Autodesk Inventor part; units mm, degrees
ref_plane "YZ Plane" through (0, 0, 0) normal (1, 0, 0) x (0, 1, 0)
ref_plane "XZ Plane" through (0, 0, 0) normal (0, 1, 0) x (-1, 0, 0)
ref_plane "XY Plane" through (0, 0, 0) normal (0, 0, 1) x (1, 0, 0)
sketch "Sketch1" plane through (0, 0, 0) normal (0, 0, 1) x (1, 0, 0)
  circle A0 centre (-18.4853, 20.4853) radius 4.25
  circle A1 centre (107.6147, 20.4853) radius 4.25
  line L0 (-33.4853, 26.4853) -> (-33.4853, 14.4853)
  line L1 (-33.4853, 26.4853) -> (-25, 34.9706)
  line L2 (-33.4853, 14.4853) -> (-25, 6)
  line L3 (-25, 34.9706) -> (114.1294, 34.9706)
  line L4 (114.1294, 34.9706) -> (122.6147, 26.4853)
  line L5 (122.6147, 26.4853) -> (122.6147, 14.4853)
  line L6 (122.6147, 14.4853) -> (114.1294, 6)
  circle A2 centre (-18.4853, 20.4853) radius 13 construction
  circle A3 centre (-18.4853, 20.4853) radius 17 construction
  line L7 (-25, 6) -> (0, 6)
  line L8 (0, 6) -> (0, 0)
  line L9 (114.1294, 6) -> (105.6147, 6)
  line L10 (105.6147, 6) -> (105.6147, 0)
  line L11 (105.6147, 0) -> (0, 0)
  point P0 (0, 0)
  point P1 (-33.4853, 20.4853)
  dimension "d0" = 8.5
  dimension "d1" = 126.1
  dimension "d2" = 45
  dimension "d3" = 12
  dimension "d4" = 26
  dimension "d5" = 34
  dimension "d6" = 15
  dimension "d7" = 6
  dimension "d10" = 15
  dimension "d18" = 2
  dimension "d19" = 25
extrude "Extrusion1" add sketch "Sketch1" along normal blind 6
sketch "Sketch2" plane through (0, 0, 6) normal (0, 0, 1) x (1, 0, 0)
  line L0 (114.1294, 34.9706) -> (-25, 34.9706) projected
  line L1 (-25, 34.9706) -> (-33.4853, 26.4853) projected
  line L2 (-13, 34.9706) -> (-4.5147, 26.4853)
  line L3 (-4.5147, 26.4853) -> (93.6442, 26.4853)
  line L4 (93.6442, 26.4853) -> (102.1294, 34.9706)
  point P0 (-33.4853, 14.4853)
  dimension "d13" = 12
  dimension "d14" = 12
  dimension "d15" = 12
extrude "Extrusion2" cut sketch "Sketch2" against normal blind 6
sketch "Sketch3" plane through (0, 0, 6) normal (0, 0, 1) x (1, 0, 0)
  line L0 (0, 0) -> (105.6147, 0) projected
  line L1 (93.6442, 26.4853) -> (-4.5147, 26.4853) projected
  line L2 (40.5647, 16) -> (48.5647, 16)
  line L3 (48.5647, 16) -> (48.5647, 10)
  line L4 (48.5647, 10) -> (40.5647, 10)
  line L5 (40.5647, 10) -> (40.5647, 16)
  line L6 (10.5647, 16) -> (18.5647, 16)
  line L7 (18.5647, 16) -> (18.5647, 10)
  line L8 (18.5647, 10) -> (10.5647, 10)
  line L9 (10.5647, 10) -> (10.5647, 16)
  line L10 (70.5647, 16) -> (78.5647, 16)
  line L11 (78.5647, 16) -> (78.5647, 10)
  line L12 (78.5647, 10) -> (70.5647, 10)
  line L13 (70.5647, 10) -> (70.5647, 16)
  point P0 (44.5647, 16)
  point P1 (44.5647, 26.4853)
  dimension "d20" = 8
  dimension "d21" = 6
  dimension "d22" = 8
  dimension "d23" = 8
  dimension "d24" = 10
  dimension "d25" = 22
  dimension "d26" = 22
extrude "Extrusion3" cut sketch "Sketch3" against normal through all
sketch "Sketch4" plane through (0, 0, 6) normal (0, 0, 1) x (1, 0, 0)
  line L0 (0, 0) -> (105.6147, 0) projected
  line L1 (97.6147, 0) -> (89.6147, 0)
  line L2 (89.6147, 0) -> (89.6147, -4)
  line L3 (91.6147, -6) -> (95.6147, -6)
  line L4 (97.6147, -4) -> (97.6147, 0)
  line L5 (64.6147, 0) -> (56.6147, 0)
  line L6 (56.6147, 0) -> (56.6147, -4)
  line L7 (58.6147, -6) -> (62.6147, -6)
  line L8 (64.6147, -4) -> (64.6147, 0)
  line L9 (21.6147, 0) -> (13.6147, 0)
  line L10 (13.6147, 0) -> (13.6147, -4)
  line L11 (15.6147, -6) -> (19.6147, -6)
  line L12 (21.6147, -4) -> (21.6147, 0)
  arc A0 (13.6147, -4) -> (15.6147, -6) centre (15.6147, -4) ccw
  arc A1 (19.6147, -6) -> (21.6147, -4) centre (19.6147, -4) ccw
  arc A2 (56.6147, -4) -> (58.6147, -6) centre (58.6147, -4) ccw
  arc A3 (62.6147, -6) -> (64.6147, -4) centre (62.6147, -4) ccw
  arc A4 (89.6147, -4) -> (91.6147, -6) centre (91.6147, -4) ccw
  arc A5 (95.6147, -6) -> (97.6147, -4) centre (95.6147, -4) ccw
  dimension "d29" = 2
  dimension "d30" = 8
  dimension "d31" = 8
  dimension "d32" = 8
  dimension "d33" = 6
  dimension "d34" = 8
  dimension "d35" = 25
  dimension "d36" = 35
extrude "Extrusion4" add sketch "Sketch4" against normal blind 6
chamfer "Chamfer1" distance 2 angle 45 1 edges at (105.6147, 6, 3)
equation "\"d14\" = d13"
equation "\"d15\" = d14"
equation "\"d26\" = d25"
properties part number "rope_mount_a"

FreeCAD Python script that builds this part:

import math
import FreeCAD as App
import Part
import Sketcher

V = App.Vector
Q = App.Units.Quantity


def edges_at(feature, points):
    """Names of the edges that pass closest to the given points."""
    edges = feature.Shape.Edges
    near = lambda p: min(range(len(edges)), key=lambda i: edges[i].distToShape(Part.Vertex(*p))[0])
    return sorted({f"Edge{near(p) + 1}" for p in points})

doc = App.newDocument("Part")
body = doc.addObject("PartDesign::Body", "Body")

# Sketch on XY plane
sketch1 = body.newObject("Sketcher::SketchObject", "Sketch")
sketch1.AttachmentSupport = (doc.getObject("XY_Plane"), [""])
sketch1.MapMode = "FlatFace"
sketch1.addGeometry([
    Part.LineSegment(V(-25, 34.9706, 0), V(-33.4853, 26.4853, 0)),  # 0
    Part.LineSegment(V(-33.4853, 26.4853, 0), V(-33.4853, 14.4853, 0)),  # 1
    Part.LineSegment(V(-33.4853, 14.4853, 0), V(-25, 6, 0)),  # 2
    Part.LineSegment(V(-25, 6, 0), V(0, 6, 0)),  # 3
    Part.LineSegment(V(0, 6, 0), V(0, 0, 0)),  # 4
    Part.LineSegment(V(0, 0, 0), V(105.6147, 0, 0)),  # 5
    Part.LineSegment(V(105.6147, 0, 0), V(105.6147, 6, 0)),  # 6
    Part.LineSegment(V(105.6147, 6, 0), V(114.1294, 6, 0)),  # 7
    Part.LineSegment(V(114.1294, 6, 0), V(122.6147, 14.4853, 0)),  # 8
    Part.LineSegment(V(122.6147, 14.4853, 0), V(122.6147, 26.4853, 0)),  # 9
    Part.LineSegment(V(122.6147, 26.4853, 0), V(114.1294, 34.9706, 0)),  # 10
    Part.LineSegment(V(114.1294, 34.9706, 0), V(-25, 34.9706, 0)),  # 11
    Part.Circle(V(-18.4853, 20.4853, 0), V(0, 0, 1), 4.25),  # 12
    Part.Circle(V(107.6147, 20.4853, 0), V(0, 0, 1), 4.25),  # 13
], False)
sketch1.addConstraint([
    Sketcher.Constraint("Coincident", 0, 2, 1, 1),
    Sketcher.Constraint("Coincident", 1, 2, 2, 1),
    Sketcher.Constraint("Coincident", 2, 2, 3, 1),
    Sketcher.Constraint("Coincident", 3, 2, 4, 1),
    Sketcher.Constraint("Coincident", 4, 2, 5, 1),
    Sketcher.Constraint("Coincident", 5, 2, 6, 1),
    Sketcher.Constraint("Coincident", 6, 2, 7, 1),
    Sketcher.Constraint("Coincident", 7, 2, 8, 1),
    Sketcher.Constraint("Coincident", 8, 2, 9, 1),
    Sketcher.Constraint("Coincident", 9, 2, 10, 1),
    Sketcher.Constraint("Coincident", 10, 2, 11, 1),
    Sketcher.Constraint("Coincident", 11, 2, 0, 1),
    Sketcher.Constraint("Vertical", 1),
    Sketcher.Constraint("Horizontal", 3),
    Sketcher.Constraint("Vertical", 4),
    Sketcher.Constraint("Horizontal", 5),
    Sketcher.Constraint("Vertical", 6),
    Sketcher.Constraint("Horizontal", 7),
    Sketcher.Constraint("Vertical", 9),
    Sketcher.Constraint("Horizontal", 11),
    Sketcher.Constraint("Coincident", 4, 2, -1, 1),
    Sketcher.Constraint("Equal", 12, 13),
    Sketcher.Constraint("Perpendicular", 0, 2),
    Sketcher.Constraint("Perpendicular", 2, 8),
    Sketcher.Constraint("Perpendicular", 8, 10),
    Sketcher.Constraint("Horizontal", 12, 3, 13, 3),
    Sketcher.Constraint("Horizontal", 3, 2, 6, 2),
    Sketcher.Constraint("Horizontal", 1, 2, 8, 2),
    Sketcher.Constraint("Horizontal", 0, 2, 9, 2),
    Sketcher.Constraint("Vertical", 7, 2, 10, 2),
    Sketcher.Constraint("Vertical", 2, 2, 11, 2),
    Sketcher.Constraint("Diameter", 12, Q("8.5 mm")),
    Sketcher.Constraint("DistanceX", 3, 1, 3, 2, Q("25 mm")),
    Sketcher.Constraint("DistanceY", 1, 2, 1, 1, Q("12 mm")),
    Sketcher.Constraint("DistanceY", 4, 2, 4, 1, Q("6 mm")),
    Sketcher.Constraint("Distance", 0, Q("12 mm")),
    Sketcher.Constraint("DistanceX", 0, 2, 12, 3, Q("15 mm")),
    Sketcher.Constraint("DistanceY", 12, 3, 0, 2, Q("6 mm")),
    Sketcher.Constraint("DistanceX", 5, 2, 13, 3, Q("2 mm")),
    Sketcher.Constraint("DistanceX", 13, 3, 8, 2, Q("15 mm")),
    Sketcher.Constraint("DistanceX", 12, 3, 13, 3, Q("126.1 mm")),
])
pad1 = body.newObject("PartDesign::Pad", "Pad")
pad1.Profile = sketch1
pad1.Length = 6

# Sketch on XY plane
sketch2 = body.newObject("Sketcher::SketchObject", "Sketch001")
sketch2.AttachmentSupport = (doc.getObject("XY_Plane"), [""])
sketch2.MapMode = "FlatFace"
sketch2.AttachmentOffset = App.Placement(V(0, 0, 6), App.Rotation())
sketch2.addGeometry([
    Part.LineSegment(V(93.6442, 26.4853, 0), V(102.1294, 34.9706, 0)),
    Part.LineSegment(V(102.1294, 34.9706, 0), V(-13, 34.9706, 0)),
    Part.LineSegment(V(-13, 34.9706, 0), V(-4.5147, 26.4853, 0)),
    Part.LineSegment(V(-4.5147, 26.4853, 0), V(93.6442, 26.4853, 0)),
], False)
sketch2.addConstraint([
    Sketcher.Constraint("Coincident", 0, 2, 1, 1),
    Sketcher.Constraint("Coincident", 1, 2, 2, 1),
    Sketcher.Constraint("Coincident", 2, 2, 3, 1),
    Sketcher.Constraint("Coincident", 3, 2, 0, 1),
    Sketcher.Constraint("Horizontal", 1),
    Sketcher.Constraint("Horizontal", 3),
    Sketcher.Constraint("Perpendicular", 0, 2),
    Sketcher.Constraint("Equal", 0, 2),
    Sketcher.Constraint("Distance", 0, Q("12 mm")),
    Sketcher.Constraint("DistanceX", 1, 2, -1, 1, Q("13 mm")),
    Sketcher.Constraint("DistanceX", 3, 1, 3, 2, Q("98.159 mm")),
    Sketcher.Constraint("DistanceY", -1, 1, 0, 2, Q("34.9706 mm")),
])
pocket1 = body.newObject("PartDesign::Pocket", "Pocket")
pocket1.Profile = sketch2
pocket1.Length = 6

# Sketch on XY plane
sketch3 = body.newObject("Sketcher::SketchObject", "Sketch002")
sketch3.AttachmentSupport = (doc.getObject("XY_Plane"), [""])
sketch3.MapMode = "FlatFace"
sketch3.AttachmentOffset = App.Placement(V(0, 0, 6), App.Rotation())
sketch3.addGeometry([
    Part.LineSegment(V(48.5647, 16, 0), V(40.5647, 16, 0)),  # 0
    Part.LineSegment(V(40.5647, 16, 0), V(40.5647, 10, 0)),  # 1
    Part.LineSegment(V(40.5647, 10, 0), V(48.5647, 10, 0)),  # 2
    Part.LineSegment(V(48.5647, 10, 0), V(48.5647, 16, 0)),  # 3
    Part.LineSegment(V(18.5647, 16, 0), V(10.5647, 16, 0)),  # 4
    Part.LineSegment(V(10.5647, 16, 0), V(10.5647, 10, 0)),  # 5
    Part.LineSegment(V(10.5647, 10, 0), V(18.5647, 10, 0)),  # 6
    Part.LineSegment(V(18.5647, 10, 0), V(18.5647, 16, 0)),  # 7
    Part.LineSegment(V(78.5647, 16, 0), V(70.5647, 16, 0)),  # 8
    Part.LineSegment(V(70.5647, 16, 0), V(70.5647, 10, 0)),  # 9
    Part.LineSegment(V(70.5647, 10, 0), V(78.5647, 10, 0)),  # 10
    Part.LineSegment(V(78.5647, 10, 0), V(78.5647, 16, 0)),  # 11
], False)
sketch3.addConstraint([
    Sketcher.Constraint("Coincident", 0, 2, 1, 1),
    Sketcher.Constraint("Coincident", 1, 2, 2, 1),
    Sketcher.Constraint("Coincident", 2, 2, 3, 1),
    Sketcher.Constraint("Coincident", 3, 2, 0, 1),
    Sketcher.Constraint("Coincident", 4, 2, 5, 1),
    Sketcher.Constraint("Coincident", 5, 2, 6, 1),
    Sketcher.Constraint("Coincident", 6, 2, 7, 1),
    Sketcher.Constraint("Coincident", 7, 2, 4, 1),
    Sketcher.Constraint("Coincident", 8, 2, 9, 1),
    Sketcher.Constraint("Coincident", 9, 2, 10, 1),
    Sketcher.Constraint("Coincident", 10, 2, 11, 1),
    Sketcher.Constraint("Coincident", 11, 2, 8, 1),
    Sketcher.Constraint("Horizontal", 0),
    Sketcher.Constraint("Vertical", 1),
    Sketcher.Constraint("Horizontal", 2),
    Sketcher.Constraint("Vertical", 3),
    Sketcher.Constraint("Horizontal", 4),
    Sketcher.Constraint("Vertical", 5),
    Sketcher.Constraint("Horizontal", 6),
    Sketcher.Constraint("Vertical", 7),
    Sketcher.Constraint("Horizontal", 8),
    Sketcher.Constraint("Vertical", 9),
    Sketcher.Constraint("Horizontal", 10),
    Sketcher.Constraint("Vertical", 11),
    Sketcher.Constraint("Horizontal", 3, 2, 4, 2),
    Sketcher.Constraint("Horizontal", 2, 2, 5, 2),
    Sketcher.Constraint("Horizontal", 7, 2, 8, 2),
    Sketcher.Constraint("Horizontal", 6, 2, 9, 2),
    Sketcher.Constraint("Equal", 2, 4),
    Sketcher.Constraint("Equal", 6, 8),
    Sketcher.Constraint("DistanceX", 0, 2, 0, 1, Q("8 mm")),
    Sketcher.Constraint("DistanceY", 1, 2, 1, 1, Q("6 mm")),
    Sketcher.Constraint("DistanceY", -1, 1, 1, 2, Q("10 mm")),
    Sketcher.Constraint("DistanceX", 6, 2, 1, 2, Q("22 mm")),
    Sketcher.Constraint("DistanceX", 3, 2, 8, 2, Q("22 mm")),
    Sketcher.Constraint("DistanceX", -1, 1, 0, 2, Q("40.5647 mm")),
])
pocket2 = body.newObject("PartDesign::Pocket", "Pocket001")
pocket2.Profile = sketch3
pocket2.Type = "ThroughAll"

# Sketch on XY plane
sketch4 = body.newObject("Sketcher::SketchObject", "Sketch003")
sketch4.AttachmentSupport = (doc.getObject("XY_Plane"), [""])
sketch4.MapMode = "FlatFace"
sketch4.AttachmentOffset = App.Placement(V(0, 0, 6), App.Rotation())
sketch4.addGeometry([
    Part.LineSegment(V(97.6147, 0, 0), V(89.6147, 0, 0)),  # 0
    Part.LineSegment(V(89.6147, 0, 0), V(89.6147, -4, 0)),  # 1
    Part.ArcOfCircle(Part.Circle(V(91.6147, -4, 0), V(0, 0, 1), 2), math.radians(180), math.radians(270)),  # 2
    Part.LineSegment(V(91.6147, -6, 0), V(95.6147, -6, 0)),  # 3
    Part.ArcOfCircle(Part.Circle(V(95.6147, -4, 0), V(0, 0, 1), 2), math.radians(-90), math.radians(0)),  # 4
    Part.LineSegment(V(97.6147, -4, 0), V(97.6147, 0, 0)),  # 5
    Part.LineSegment(V(64.6147, 0, 0), V(56.6147, 0, 0)),  # 6
    Part.LineSegment(V(56.6147, 0, 0), V(56.6147, -4, 0)),  # 7
    Part.ArcOfCircle(Part.Circle(V(58.6147, -4, 0), V(0, 0, 1), 2), math.radians(180), math.radians(270)),  # 8
    Part.LineSegment(V(58.6147, -6, 0), V(62.6147, -6, 0)),  # 9
    Part.ArcOfCircle(Part.Circle(V(62.6147, -4, 0), V(0, 0, 1), 2), math.radians(-90), math.radians(0)),  # 10
    Part.LineSegment(V(64.6147, -4, 0), V(64.6147, 0, 0)),  # 11
    Part.LineSegment(V(21.6147, 0, 0), V(13.6147, 0, 0)),  # 12
    Part.LineSegment(V(13.6147, 0, 0), V(13.6147, -4, 0)),  # 13
    Part.ArcOfCircle(Part.Circle(V(15.6147, -4, 0), V(0, 0, 1), 2), math.radians(180), math.radians(270)),  # 14
    Part.LineSegment(V(15.6147, -6, 0), V(19.6147, -6, 0)),  # 15
    Part.ArcOfCircle(Part.Circle(V(19.6147, -4, 0), V(0, 0, 1), 2), math.radians(-90), math.radians(0)),  # 16
    Part.LineSegment(V(21.6147, -4, 0), V(21.6147, 0, 0)),  # 17
], False)
sketch4.addConstraint([
    Sketcher.Constraint("Coincident", 0, 2, 1, 1),
    Sketcher.Constraint("Tangent", 1, 2, 2, 1),
    Sketcher.Constraint("Tangent", 2, 2, 3, 1),
    Sketcher.Constraint("Tangent", 3, 2, 4, 1),
    Sketcher.Constraint("Tangent", 4, 2, 5, 1),
    Sketcher.Constraint("Coincident", 5, 2, 0, 1),
    Sketcher.Constraint("Coincident", 6, 2, 7, 1),
    Sketcher.Constraint("Tangent", 7, 2, 8, 1),
    Sketcher.Constraint("Tangent", 8, 2, 9, 1),
    Sketcher.Constraint("Tangent", 9, 2, 10, 1),
    Sketcher.Constraint("Tangent", 10, 2, 11, 1),
    Sketcher.Constraint("Coincident", 11, 2, 6, 1),
    Sketcher.Constraint("Coincident", 12, 2, 13, 1),
    Sketcher.Constraint("Tangent", 13, 2, 14, 1),
    Sketcher.Constraint("Tangent", 14, 2, 15, 1),
    Sketcher.Constraint("Tangent", 15, 2, 16, 1),
    Sketcher.Constraint("Tangent", 16, 2, 17, 1),
    Sketcher.Constraint("Coincident", 17, 2, 12, 1),
    Sketcher.Constraint("Horizontal", 0),
    Sketcher.Constraint("Vertical", 1),
    Sketcher.Constraint("Horizontal", 3),
    Sketcher.Constraint("Vertical", 5),
    Sketcher.Constraint("Horizontal", 6),
    Sketcher.Constraint("Vertical", 7),
    Sketcher.Constraint("Horizontal", 9),
    Sketcher.Constraint("Vertical", 11),
    Sketcher.Constraint("Horizontal", 12),
    Sketcher.Constraint("Vertical", 13),
    Sketcher.Constraint("Horizontal", 15),
    Sketcher.Constraint("Vertical", 17),
    Sketcher.Constraint("Equal", 2, 4),
    Sketcher.Constraint("Equal", 4, 8),
    Sketcher.Constraint("Equal", 8, 10),
    Sketcher.Constraint("Equal", 10, 14),
    Sketcher.Constraint("Equal", 14, 16),
    Sketcher.Constraint("PointOnObject", 0, 2, -1),
    Sketcher.Constraint("PointOnObject", 6, 2, -1),
    Sketcher.Constraint("PointOnObject", 12, 2, -1),
    Sketcher.Constraint("Horizontal", 4, 3, 8, 3),
    Sketcher.Constraint("Horizontal", 10, 3, 14, 3),
    Sketcher.Constraint("Equal", 0, 6),
    Sketcher.Constraint("Equal", 6, 12),
    Sketcher.Constraint("Equal", 15, 1),
    Sketcher.Constraint("Radius", 2, Q("2 mm")),
    Sketcher.Constraint("DistanceX", 0, 2, 0, 1, Q("8 mm")),
    Sketcher.Constraint("DistanceX", 6, 2, 2, 3, Q("35 mm")),
    Sketcher.Constraint("DistanceX", 14, 3, 8, 3, Q("43 mm")),
    Sketcher.Constraint("DistanceX", -1, 1, 2, 3, Q("91.6147 mm")),
])
pad2 = body.newObject("PartDesign::Pad", "Pad001")
pad2.Profile = sketch4
pad2.Length = 6
pad2.Reversed = True
doc.recompute()

chamfer = body.newObject("PartDesign::Chamfer", "Chamfer")
chamfer.Base = (pad2, edges_at(pad2, [(105.615, 6, 3)]))
chamfer.Size = 2

doc.recompute()
